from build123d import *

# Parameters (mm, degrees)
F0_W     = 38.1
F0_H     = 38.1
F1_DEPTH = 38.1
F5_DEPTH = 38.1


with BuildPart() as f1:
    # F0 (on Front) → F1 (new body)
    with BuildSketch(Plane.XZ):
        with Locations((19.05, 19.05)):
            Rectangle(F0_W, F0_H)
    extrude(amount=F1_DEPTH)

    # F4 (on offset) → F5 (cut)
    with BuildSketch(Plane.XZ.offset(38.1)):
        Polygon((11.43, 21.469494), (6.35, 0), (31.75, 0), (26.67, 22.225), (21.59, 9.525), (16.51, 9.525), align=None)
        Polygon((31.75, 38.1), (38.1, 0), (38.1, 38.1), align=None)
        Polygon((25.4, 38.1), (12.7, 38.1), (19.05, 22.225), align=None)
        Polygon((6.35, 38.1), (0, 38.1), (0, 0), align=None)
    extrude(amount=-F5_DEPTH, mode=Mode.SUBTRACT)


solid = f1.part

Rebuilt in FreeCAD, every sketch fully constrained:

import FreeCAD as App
import Part
import Sketcher
Q = App.Units.Quantity

doc = App.newDocument("Part")
body = doc.addObject("PartDesign::Body", "Body")

sketch1 = doc.addObject("Sketcher::SketchObject", "Sketch")
body.addObject(sketch1)
sketch1.AttachmentSupport = (doc.XZ_Plane, [""])
sketch1.MapMode = "FlatFace"
sketch1.addGeometry([
    Part.LineSegment(App.Vector(0, 38, 0), App.Vector(0, 0, 0)),
    Part.LineSegment(App.Vector(0, 0, 0), App.Vector(38, 0, 0)),
    Part.LineSegment(App.Vector(38, 0, 0), App.Vector(38, 38, 0)),
    Part.LineSegment(App.Vector(38, 38, 0), App.Vector(0, 38, 0)),
], False)
sketch1.addConstraint([
    Sketcher.Constraint("Coincident", 0, 2, 1, 1),
    Sketcher.Constraint("Coincident", 1, 2, 2, 1),
    Sketcher.Constraint("Coincident", 2, 2, 3, 1),
    Sketcher.Constraint("Coincident", 3, 2, 0, 1),
    Sketcher.Constraint("Vertical", 0),
    Sketcher.Constraint("Horizontal", 1),
    Sketcher.Constraint("Vertical", 2),
    Sketcher.Constraint("Horizontal", 3),
    Sketcher.Constraint("Coincident", 0, 2, -1, 1),
    Sketcher.Constraint("Equal", 3, 0),
    Sketcher.Constraint("DistanceX", 1, 1, 1, 2, Q("1.5 in")),
])
pad1 = doc.addObject("PartDesign::Pad", "Pad")
body.addObject(pad1)
pad1.Profile = sketch1
pad1.Length = Q("1.5 in")

sketch2 = doc.addObject("Sketcher::SketchObject", "Sketch001")
body.addObject(sketch2)
sketch2.AttachmentSupport = (doc.XZ_Plane, [""])
sketch2.MapMode = "FlatFace"
sketch2.AttachmentOffset = App.Placement(App.Vector(0, 0, 1.5 * 25.4), App.Rotation())
sketch2.addGeometry([
    Part.LineSegment(App.Vector(11, 21, 0), App.Vector(6, 0, 0)),
    Part.LineSegment(App.Vector(6, 0, 0), App.Vector(32, 0, 0)),
    Part.LineSegment(App.Vector(32, 0, 0), App.Vector(27, 22, 0)),
    Part.LineSegment(App.Vector(27, 22, 0), App.Vector(22, 10, 0)),
    Part.LineSegment(App.Vector(22, 10, 0), App.Vector(17, 10, 0)),
    Part.LineSegment(App.Vector(17, 10, 0), App.Vector(11, 21, 0)),
    Part.LineSegment(App.Vector(32, 38, 0), App.Vector(38, 0, 0)),
    Part.LineSegment(App.Vector(38, 0, 0), App.Vector(38, 38, 0)),
    Part.LineSegment(App.Vector(38, 38, 0), App.Vector(32, 38, 0)),
    Part.LineSegment(App.Vector(25, 38, 0), App.Vector(13, 38, 0)),
    Part.LineSegment(App.Vector(13, 38, 0), App.Vector(19, 22, 0)),
    Part.LineSegment(App.Vector(19, 22, 0), App.Vector(25, 38, 0)),
    Part.LineSegment(App.Vector(6, 38, 0), App.Vector(0, 38, 0)),
    Part.LineSegment(App.Vector(0, 38, 0), App.Vector(0, 0, 0)),
    Part.LineSegment(App.Vector(0, 0, 0), App.Vector(6, 38, 0)),
], False)
sketch2.addConstraint([
    Sketcher.Constraint("Coincident", 0, 2, 1, 1),
    Sketcher.Constraint("Coincident", 1, 2, 2, 1),
    Sketcher.Constraint("Coincident", 2, 2, 3, 1),
    Sketcher.Constraint("Coincident", 3, 2, 4, 1),
    Sketcher.Constraint("Coincident", 4, 2, 5, 1),
    Sketcher.Constraint("Coincident", 5, 2, 0, 1),
    Sketcher.Constraint("Coincident", 6, 2, 7, 1),
    Sketcher.Constraint("Coincident", 7, 2, 8, 1),
    Sketcher.Constraint("Coincident", 8, 2, 6, 1),
    Sketcher.Constraint("Coincident", 9, 2, 10, 1),
    Sketcher.Constraint("Coincident", 10, 2, 11, 1),
    Sketcher.Constraint("Coincident", 11, 2, 9, 1),
    Sketcher.Constraint("Coincident", 12, 2, 13, 1),
    Sketcher.Constraint("Coincident", 13, 2, 14, 1),
    Sketcher.Constraint("Coincident", 14, 2, 12, 1),
    Sketcher.Constraint("Horizontal", 1),
    Sketcher.Constraint("Horizontal", 4),
    Sketcher.Constraint("Vertical", 7),
    Sketcher.Constraint("Horizontal", 8),
    Sketcher.Constraint("Horizontal", 9),
    Sketcher.Constraint("Horizontal", 12),
    Sketcher.Constraint("Vertical", 13),
    Sketcher.Constraint("Coincident", 13, 2, -1, 1),
    Sketcher.Constraint("PointOnObject", 0, 2, -1),
    Sketcher.Constraint("PointOnObject", 6, 2, -1),
    Sketcher.Constraint("Parallel", 3, 11),
    Sketcher.Constraint("Horizontal", 8, 2, 9, 2),
    Sketcher.Constraint("Horizontal", 2, 2, 10, 2),
    Sketcher.Constraint("Horizontal", 11, 2, 12, 2),
    Sketcher.Constraint("Vertical", 1, 2, 8, 2),
    Sketcher.Constraint("Vertical", 0, 2, 14, 2),
    Sketcher.Constraint("Equal", 8, 12),
    Sketcher.Constraint("Equal", 10, 11),
    Sketcher.Constraint("DistanceX", 1, 1, 1, 2, Q("1 in")),
    Sketcher.Constraint("DistanceX", 4, 2, 4, 1, Q("0.2 in")),
    Sketcher.Constraint("DistanceX", 9, 2, 9, 1, Q("0.5 in")),
    Sketcher.Constraint("DistanceY", 7, 1, 7, 2, Q("1.5 in")),
    Sketcher.Constraint("DistanceX", -1, 1, 11, 2, Q("1 in")),
    Sketcher.Constraint("DistanceX", 9, 2, 7, 2, Q("1 in")),
    Sketcher.Constraint("DistanceX", 2, 2, 1, 2, Q("0.2 in")),
    Sketcher.Constraint("DistanceX", 3, 2, 2, 2, Q("0.2 in")),
    Sketcher.Constraint("DistanceY", 3, 2, 2, 2, Q("0.5 in")),
    Sketcher.Constraint("DistanceX", 5, 2, 4, 2, Q("0.2 in")),
    Sketcher.Constraint("Distance", 0, 22.062311),
])
pocket1 = doc.addObject("PartDesign::Pocket", "Pocket")
body.addObject(pocket1)
pocket1.Profile = sketch2
pocket1.Length = Q("1.5 in")

doc.recompute()
